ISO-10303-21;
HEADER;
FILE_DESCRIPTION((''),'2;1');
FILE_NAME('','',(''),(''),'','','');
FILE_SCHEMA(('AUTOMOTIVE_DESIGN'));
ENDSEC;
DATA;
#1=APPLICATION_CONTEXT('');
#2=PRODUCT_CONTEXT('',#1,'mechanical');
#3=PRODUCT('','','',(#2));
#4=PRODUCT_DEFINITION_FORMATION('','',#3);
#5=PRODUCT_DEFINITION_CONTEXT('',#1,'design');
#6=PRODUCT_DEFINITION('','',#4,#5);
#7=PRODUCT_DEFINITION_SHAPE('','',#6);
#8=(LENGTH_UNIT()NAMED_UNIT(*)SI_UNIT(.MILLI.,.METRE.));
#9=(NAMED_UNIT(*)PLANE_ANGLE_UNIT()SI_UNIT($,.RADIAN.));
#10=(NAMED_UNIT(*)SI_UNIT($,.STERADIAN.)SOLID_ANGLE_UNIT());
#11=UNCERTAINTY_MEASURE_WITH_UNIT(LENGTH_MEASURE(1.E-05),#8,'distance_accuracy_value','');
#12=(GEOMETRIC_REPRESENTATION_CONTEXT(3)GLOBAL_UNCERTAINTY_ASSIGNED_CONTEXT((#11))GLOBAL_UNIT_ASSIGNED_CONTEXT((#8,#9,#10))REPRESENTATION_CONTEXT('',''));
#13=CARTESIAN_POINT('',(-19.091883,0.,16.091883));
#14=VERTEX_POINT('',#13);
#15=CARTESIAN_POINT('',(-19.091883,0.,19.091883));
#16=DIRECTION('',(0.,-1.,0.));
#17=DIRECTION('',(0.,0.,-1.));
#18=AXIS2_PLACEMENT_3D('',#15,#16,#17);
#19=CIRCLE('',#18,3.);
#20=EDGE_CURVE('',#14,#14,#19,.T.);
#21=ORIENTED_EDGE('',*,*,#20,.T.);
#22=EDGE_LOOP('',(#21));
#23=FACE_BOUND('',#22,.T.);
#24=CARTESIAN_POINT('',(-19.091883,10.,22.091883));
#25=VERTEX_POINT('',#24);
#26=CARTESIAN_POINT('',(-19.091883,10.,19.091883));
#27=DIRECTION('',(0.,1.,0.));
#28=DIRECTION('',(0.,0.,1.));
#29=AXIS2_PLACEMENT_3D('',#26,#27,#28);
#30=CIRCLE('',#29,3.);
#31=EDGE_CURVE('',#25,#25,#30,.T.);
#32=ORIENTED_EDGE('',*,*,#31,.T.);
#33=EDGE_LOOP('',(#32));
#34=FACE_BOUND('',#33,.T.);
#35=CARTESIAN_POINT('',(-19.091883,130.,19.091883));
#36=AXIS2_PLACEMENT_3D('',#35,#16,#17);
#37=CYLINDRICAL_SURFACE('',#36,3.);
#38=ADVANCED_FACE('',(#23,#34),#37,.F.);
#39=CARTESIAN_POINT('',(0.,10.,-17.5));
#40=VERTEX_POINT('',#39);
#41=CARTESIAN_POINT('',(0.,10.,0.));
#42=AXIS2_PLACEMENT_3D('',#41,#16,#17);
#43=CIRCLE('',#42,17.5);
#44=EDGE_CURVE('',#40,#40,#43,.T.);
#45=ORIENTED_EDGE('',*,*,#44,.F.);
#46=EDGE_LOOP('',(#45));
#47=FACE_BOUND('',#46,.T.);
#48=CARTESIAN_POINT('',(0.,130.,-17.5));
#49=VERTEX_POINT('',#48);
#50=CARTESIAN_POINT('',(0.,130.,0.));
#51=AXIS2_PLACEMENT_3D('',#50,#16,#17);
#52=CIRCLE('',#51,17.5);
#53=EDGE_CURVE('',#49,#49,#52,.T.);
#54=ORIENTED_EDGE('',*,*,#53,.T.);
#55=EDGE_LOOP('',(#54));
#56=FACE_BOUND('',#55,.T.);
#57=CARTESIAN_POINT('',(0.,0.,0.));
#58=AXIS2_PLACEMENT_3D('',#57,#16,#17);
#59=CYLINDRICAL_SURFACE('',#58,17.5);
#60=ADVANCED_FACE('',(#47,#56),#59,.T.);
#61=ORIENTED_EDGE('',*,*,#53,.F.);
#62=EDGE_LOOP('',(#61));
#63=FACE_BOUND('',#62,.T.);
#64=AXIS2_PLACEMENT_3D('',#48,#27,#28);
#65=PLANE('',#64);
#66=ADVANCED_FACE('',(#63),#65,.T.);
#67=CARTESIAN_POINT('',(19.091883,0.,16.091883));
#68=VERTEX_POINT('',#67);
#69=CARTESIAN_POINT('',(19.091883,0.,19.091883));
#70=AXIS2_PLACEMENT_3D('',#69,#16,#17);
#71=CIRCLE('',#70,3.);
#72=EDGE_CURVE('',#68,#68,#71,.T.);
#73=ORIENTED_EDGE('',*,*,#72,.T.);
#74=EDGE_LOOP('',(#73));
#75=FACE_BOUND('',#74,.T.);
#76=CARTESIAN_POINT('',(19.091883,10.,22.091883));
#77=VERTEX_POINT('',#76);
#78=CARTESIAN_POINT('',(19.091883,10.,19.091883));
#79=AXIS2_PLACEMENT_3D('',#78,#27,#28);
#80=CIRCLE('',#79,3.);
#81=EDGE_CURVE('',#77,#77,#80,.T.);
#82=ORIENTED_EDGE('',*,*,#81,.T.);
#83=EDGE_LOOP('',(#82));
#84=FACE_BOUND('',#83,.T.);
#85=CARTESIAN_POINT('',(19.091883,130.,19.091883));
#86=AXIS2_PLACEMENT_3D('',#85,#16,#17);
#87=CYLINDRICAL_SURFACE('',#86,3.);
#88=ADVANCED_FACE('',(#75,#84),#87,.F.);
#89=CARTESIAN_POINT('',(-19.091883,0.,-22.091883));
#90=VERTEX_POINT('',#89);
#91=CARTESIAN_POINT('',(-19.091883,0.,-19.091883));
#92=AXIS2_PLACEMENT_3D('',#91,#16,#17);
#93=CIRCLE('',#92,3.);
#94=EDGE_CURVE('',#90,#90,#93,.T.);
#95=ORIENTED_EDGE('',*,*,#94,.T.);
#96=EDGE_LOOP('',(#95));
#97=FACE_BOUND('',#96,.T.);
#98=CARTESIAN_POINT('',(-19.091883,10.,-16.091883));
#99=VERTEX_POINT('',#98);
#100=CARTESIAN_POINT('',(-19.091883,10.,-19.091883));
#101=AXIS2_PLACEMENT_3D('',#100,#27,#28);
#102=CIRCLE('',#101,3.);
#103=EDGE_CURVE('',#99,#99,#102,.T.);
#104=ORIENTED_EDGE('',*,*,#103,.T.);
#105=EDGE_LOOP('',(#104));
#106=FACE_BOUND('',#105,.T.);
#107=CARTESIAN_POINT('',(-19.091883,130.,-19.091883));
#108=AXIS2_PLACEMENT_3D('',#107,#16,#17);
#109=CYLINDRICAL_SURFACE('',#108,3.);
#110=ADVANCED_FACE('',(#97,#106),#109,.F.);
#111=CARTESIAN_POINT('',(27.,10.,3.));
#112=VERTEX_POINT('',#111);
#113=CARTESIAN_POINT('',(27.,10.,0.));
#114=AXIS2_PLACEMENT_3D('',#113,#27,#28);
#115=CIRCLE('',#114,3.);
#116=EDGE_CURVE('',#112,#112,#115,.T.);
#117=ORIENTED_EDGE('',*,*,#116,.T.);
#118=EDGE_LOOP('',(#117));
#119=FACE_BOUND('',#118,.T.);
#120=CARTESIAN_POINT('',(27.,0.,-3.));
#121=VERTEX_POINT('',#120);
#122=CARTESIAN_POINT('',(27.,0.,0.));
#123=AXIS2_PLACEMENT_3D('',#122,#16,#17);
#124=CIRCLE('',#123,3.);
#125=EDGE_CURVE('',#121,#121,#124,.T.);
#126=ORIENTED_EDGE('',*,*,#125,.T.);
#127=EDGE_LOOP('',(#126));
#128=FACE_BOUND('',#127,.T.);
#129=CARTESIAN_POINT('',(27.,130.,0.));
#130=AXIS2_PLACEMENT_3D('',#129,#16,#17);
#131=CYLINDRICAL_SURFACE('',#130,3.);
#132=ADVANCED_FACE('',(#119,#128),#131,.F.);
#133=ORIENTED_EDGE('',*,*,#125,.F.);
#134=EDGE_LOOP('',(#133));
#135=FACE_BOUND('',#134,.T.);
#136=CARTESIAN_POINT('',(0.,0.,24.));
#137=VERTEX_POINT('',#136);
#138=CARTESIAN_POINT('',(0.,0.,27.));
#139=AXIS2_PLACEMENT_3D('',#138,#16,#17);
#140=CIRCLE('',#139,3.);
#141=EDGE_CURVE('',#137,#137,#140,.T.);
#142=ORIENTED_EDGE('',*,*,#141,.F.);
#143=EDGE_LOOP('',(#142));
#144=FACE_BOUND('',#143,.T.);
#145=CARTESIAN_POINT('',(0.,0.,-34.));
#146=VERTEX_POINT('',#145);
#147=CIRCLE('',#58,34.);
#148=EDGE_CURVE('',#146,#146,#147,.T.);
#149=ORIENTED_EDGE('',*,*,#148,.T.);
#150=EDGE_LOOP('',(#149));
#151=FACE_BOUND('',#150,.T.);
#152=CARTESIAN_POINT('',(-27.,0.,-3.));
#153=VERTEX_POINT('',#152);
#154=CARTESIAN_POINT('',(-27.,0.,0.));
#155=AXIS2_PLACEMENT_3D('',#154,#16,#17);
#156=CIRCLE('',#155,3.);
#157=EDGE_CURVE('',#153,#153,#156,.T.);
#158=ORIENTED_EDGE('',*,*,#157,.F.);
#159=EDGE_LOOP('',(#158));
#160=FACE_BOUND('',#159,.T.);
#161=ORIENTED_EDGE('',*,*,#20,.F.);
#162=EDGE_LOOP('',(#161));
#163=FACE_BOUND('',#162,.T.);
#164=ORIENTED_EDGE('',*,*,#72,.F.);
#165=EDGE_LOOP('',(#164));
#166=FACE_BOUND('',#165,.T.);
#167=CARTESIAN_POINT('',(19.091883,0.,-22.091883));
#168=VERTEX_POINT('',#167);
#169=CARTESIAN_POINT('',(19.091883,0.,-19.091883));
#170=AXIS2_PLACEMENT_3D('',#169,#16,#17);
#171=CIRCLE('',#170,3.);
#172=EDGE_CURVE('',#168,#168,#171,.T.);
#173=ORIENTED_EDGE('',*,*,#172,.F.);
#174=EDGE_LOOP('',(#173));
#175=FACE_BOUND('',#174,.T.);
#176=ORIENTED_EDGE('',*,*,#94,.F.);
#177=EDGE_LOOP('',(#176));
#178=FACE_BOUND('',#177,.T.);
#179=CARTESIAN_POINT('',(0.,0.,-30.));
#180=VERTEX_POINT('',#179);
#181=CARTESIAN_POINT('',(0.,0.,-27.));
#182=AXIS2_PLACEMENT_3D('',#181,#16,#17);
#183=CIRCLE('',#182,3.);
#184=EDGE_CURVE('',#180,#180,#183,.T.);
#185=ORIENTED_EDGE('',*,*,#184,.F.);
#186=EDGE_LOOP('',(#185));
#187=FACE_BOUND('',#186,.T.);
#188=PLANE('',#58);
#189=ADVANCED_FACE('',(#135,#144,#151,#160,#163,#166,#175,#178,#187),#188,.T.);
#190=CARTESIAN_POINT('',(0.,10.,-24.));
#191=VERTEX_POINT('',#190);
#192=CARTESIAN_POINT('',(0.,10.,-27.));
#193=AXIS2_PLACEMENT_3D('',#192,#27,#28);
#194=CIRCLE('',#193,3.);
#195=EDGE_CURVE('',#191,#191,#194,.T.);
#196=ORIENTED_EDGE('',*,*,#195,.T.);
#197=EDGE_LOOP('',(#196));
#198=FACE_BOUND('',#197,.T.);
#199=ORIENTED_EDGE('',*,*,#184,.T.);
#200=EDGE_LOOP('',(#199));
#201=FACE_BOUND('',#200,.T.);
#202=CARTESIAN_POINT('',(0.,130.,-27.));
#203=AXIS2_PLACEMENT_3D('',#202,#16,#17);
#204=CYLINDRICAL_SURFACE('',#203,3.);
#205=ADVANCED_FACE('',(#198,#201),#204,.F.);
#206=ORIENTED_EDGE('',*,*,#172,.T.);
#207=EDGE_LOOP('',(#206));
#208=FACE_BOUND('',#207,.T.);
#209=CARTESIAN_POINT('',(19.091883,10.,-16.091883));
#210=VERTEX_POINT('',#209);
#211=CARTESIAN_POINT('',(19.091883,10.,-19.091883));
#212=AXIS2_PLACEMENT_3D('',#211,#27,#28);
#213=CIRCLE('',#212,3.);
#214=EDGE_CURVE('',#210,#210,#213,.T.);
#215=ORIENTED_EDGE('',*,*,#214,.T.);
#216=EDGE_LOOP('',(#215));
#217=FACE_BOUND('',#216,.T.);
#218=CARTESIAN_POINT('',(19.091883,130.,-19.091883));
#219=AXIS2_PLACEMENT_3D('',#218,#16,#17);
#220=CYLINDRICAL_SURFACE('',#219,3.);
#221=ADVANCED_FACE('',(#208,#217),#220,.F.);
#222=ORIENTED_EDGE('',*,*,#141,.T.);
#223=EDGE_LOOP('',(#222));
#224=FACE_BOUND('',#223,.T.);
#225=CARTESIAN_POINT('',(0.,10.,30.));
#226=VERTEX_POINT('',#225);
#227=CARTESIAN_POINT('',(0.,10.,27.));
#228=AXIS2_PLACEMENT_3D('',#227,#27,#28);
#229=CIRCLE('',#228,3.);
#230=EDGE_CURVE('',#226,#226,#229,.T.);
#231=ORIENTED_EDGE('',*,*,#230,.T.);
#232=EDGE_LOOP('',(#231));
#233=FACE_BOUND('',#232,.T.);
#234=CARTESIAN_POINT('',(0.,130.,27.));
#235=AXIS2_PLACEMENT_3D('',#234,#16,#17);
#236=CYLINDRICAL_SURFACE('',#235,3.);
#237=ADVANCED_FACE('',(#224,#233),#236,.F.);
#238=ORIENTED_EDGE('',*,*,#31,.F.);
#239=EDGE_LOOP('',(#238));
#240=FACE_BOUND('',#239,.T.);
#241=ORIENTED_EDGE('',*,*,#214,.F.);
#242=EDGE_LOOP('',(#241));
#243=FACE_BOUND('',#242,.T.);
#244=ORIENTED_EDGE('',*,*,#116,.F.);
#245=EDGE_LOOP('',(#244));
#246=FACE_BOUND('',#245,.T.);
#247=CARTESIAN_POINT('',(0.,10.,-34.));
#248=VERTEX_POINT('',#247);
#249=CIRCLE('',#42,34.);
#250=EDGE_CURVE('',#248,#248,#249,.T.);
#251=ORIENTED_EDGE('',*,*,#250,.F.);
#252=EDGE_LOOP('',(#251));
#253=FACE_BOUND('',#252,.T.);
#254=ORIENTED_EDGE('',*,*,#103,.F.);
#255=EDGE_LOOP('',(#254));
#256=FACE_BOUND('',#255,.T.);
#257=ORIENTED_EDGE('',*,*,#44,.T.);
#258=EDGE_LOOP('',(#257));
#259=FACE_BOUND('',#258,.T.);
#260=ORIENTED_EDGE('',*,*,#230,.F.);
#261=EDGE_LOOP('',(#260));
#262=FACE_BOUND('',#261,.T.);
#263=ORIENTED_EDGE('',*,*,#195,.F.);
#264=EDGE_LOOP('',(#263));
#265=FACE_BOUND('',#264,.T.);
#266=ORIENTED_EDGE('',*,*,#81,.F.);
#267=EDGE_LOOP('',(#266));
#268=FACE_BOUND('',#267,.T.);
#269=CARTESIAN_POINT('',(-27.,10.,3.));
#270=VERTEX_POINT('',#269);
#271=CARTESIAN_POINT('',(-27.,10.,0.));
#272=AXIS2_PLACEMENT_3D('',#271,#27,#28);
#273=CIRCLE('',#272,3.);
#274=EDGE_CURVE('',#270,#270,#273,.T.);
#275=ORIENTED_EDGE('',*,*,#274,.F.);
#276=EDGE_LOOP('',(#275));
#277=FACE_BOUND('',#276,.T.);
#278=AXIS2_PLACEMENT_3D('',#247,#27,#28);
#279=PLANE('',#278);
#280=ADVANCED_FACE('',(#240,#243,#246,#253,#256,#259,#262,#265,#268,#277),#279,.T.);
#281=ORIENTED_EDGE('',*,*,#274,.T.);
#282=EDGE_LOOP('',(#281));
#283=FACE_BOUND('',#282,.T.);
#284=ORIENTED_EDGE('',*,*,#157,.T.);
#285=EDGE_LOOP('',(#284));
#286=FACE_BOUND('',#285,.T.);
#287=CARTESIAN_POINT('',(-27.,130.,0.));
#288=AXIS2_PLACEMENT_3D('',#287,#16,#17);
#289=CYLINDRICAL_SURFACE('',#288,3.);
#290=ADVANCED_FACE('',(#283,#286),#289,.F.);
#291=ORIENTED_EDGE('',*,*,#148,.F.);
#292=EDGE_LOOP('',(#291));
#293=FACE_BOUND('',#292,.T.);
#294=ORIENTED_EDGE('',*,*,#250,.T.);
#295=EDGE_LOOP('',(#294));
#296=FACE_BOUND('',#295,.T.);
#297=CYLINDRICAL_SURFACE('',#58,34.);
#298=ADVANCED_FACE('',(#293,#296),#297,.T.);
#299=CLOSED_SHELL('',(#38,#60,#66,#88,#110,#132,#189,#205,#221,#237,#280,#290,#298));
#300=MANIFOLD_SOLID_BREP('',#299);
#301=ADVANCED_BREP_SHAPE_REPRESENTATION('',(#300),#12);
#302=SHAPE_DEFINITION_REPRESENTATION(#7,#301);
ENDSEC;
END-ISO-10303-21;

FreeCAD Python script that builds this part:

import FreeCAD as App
import Part
import Sketcher
from FreeCAD import Vector


def add_polygon(sketch, points):
    """Adds a closed chain of lines whose ends are joined by coincident constraints."""
    first, n = sketch.GeometryCount, len(points)
    for a, b in zip(points, points[1:] + points[:1]):
        sketch.addGeometry(Part.LineSegment(App.Vector(*a, 0), App.Vector(*b, 0)), False)
    for i in range(n):
        sketch.addConstraint(Sketcher.Constraint("Coincident", first + i, 2, first + (i + 1) % n, 1))

doc = App.newDocument("Part")
body = doc.addObject("PartDesign::Body", "Body")

# Sketch on YZ plane
sketch1 = body.newObject("Sketcher::SketchObject", "Sketch")
sketch1.AttachmentSupport = (doc.getObject("YZ_Plane"), [""])
sketch1.MapMode = "FlatFace"
add_polygon(sketch1, [(0, 0), (0, -34), (10, -34), (10, -18), (130, -18), (130, 0)])  # lines 0-5
sketch1.addConstraint([
    Sketcher.Constraint("Vertical", 0),
    Sketcher.Constraint("Horizontal", 1),
    Sketcher.Constraint("Vertical", 2),
    Sketcher.Constraint("Horizontal", 3),
    Sketcher.Constraint("Vertical", 4),
    Sketcher.Constraint("Horizontal", 5),
    Sketcher.Constraint("Coincident", 5, 2, -1, 1),
    Sketcher.Constraint("DistanceX", 1, 1, 1, 2, 10.0),
    Sketcher.Constraint("DistanceX", 3, 1, 3, 2, 120.0),
    Sketcher.Constraint("DistanceY", 0, 2, 0, 1, 34.0),
    Sketcher.Constraint("DistanceY", 2, 1, 2, 2, 16.5),
])
revolution = body.newObject("PartDesign::Revolution", "Revolution")
revolution.Profile = sketch1
revolution.ReferenceAxis = (sketch1, ["H_Axis"])
revolution.Angle = 360

# Sketch on XZ plane
sketch2 = body.newObject("Sketcher::SketchObject", "Sketch001")
sketch2.AttachmentSupport = (doc.getObject("XZ_Plane"), [""])
sketch2.MapMode = "FlatFace"
sketch2.addGeometry([
    Part.Circle(Vector(27, 0, 0), Vector(0, 0, 1), 3),  # 0
    Part.Circle(Vector(19.1, -19.1, 0), Vector(0, 0, 1), 3),  # 1
    Part.Circle(Vector(0, -27, 0), Vector(0, 0, 1), 3),  # 2
    Part.Circle(Vector(-19.1, -19.1, 0), Vector(0, 0, 1), 3),  # 3
    Part.Circle(Vector(-27, 0, 0), Vector(0, 0, 1), 3),  # 4
    Part.Circle(Vector(-19.1, 19.1, 0), Vector(0, 0, 1), 3),  # 5
    Part.Circle(Vector(0, 27, 0), Vector(0, 0, 1), 3),  # 6
    Part.Circle(Vector(19.1, 19.1, 0), Vector(0, 0, 1), 3),  # 7
], False)
sketch2.addConstraint([
    Sketcher.Constraint("Equal", 0, 1),
    Sketcher.Constraint("Equal", 1, 2),
    Sketcher.Constraint("Equal", 2, 3),
    Sketcher.Constraint("Equal", 3, 4),
    Sketcher.Constraint("Equal", 4, 5),
    Sketcher.Constraint("Equal", 5, 6),
    Sketcher.Constraint("Equal", 6, 7),
    Sketcher.Constraint("Symmetric", 0, 3, 4, 3, -1, 1),
    Sketcher.Constraint("Symmetric", 1, 3, 5, 3, -1, 1),
    Sketcher.Constraint("Symmetric", 2, 3, 6, 3, -1, 1),
    Sketcher.Constraint("Symmetric", 3, 3, 7, 3, -1, 1),
    Sketcher.Constraint("Symmetric", 1, 3, 3, 3, -2),
    Sketcher.Constraint("PointOnObject", 0, 3, -1),
    Sketcher.Constraint("PointOnObject", 2, 3, -2),
    Sketcher.Constraint("Diameter", 0, 6.0),
    Sketcher.Constraint("DistanceX", -1, 1, 0, 3, 27.0),
    Sketcher.Constraint("DistanceY", 2, 3, -1, 1, 27.0),
    Sketcher.Constraint("DistanceX", -1, 1, 1, 3, 19.091883),
    Sketcher.Constraint("DistanceY", 1, 3, -1, 1, 19.091883),
])
pocket1 = body.newObject("PartDesign::Pocket", "Pocket")
pocket1.Profile = sketch2
pocket1.Type = "ThroughAll"

doc.recompute()
